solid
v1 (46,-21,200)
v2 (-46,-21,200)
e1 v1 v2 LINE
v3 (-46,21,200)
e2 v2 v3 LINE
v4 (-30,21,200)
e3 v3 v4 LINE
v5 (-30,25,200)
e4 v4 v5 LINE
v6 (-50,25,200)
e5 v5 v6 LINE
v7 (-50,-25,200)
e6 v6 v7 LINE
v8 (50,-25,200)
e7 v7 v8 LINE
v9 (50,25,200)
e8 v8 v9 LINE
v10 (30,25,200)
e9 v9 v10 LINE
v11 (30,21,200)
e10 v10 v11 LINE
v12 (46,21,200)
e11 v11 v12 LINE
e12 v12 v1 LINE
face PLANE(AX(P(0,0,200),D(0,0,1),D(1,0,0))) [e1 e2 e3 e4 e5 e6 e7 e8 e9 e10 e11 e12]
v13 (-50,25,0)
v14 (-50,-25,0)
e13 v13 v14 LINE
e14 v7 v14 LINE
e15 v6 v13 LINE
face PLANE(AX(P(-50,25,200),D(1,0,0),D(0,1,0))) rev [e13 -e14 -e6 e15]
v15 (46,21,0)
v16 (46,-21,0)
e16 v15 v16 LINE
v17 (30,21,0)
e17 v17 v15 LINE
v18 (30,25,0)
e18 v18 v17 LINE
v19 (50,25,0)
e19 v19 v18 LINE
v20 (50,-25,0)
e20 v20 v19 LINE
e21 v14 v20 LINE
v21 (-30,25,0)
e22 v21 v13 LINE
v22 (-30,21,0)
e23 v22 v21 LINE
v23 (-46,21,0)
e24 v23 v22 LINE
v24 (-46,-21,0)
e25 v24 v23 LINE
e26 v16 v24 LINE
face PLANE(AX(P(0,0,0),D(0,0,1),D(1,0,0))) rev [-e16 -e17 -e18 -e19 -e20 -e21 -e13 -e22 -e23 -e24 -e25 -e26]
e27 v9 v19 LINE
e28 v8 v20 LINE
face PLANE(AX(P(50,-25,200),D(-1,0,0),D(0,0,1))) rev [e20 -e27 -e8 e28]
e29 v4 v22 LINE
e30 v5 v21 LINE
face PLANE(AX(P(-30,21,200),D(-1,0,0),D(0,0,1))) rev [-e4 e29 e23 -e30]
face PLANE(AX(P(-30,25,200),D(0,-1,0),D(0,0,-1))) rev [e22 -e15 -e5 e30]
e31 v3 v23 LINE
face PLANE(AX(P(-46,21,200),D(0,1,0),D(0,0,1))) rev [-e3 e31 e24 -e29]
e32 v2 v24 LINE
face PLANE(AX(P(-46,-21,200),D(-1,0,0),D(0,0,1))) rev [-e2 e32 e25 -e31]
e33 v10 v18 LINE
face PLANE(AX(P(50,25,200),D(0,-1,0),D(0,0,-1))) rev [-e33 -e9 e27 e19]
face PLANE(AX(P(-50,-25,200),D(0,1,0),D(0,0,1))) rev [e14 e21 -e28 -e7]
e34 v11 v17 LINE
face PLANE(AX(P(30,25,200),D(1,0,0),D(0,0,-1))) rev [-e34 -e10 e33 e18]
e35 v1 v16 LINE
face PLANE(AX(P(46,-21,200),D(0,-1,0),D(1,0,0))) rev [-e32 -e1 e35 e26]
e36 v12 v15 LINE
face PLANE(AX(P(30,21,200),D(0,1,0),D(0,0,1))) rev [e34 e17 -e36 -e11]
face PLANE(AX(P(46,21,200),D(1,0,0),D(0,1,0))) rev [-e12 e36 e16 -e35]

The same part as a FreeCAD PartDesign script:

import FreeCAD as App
import Part
import Sketcher
Q = App.Units.Quantity


def add_polygon(sketch, points):
    """Adds a closed chain of lines whose ends are joined by coincident constraints."""
    first, n = sketch.GeometryCount, len(points)
    for a, b in zip(points, points[1:] + points[:1]):
        sketch.addGeometry(Part.LineSegment(App.Vector(*a, 0), App.Vector(*b, 0)), False)
    for i in range(n):
        sketch.addConstraint(Sketcher.Constraint("Coincident", first + i, 2, first + (i + 1) % n, 1))

doc = App.newDocument("Part")
body = doc.addObject("PartDesign::Body", "Body")

# Sketch on XY plane
sketch1 = body.newObject("Sketcher::SketchObject", "Sketch")
sketch1.AttachmentSupport = (doc.getObject("XY_Plane"), [""])
sketch1.MapMode = "FlatFace"
add_polygon(sketch1, [(-30, 25), (-50, 25), (-50, -25), (50, -25), (50, 25), (30, 25), (30, 21), (46, 21), (46, -21), (-46, -21), (-46, 21), (-30, 21)])  # lines 0-11
sketch1.addConstraint([
    Sketcher.Constraint("Horizontal", 0),
    Sketcher.Constraint("Vertical", 1),
    Sketcher.Constraint("Horizontal", 2),
    Sketcher.Constraint("Vertical", 3),
    Sketcher.Constraint("Horizontal", 4),
    Sketcher.Constraint("Vertical", 5),
    Sketcher.Constraint("Horizontal", 6),
    Sketcher.Constraint("Vertical", 7),
    Sketcher.Constraint("Horizontal", 8),
    Sketcher.Constraint("Vertical", 9),
    Sketcher.Constraint("Horizontal", 10),
    Sketcher.Constraint("Vertical", 11),
    Sketcher.Constraint("Symmetric", 0, 2, 2, 2, -1, 1),
    Sketcher.Constraint("Symmetric", 6, 2, 8, 2, -1, 1),
    Sketcher.Constraint("Symmetric", 5, 2, 10, 2, -2),
    Sketcher.Constraint("Horizontal", 0, 2, 3, 2),
    Sketcher.Constraint("DistanceX", 0, 2, 0, 1, Q("20 mm")),
    Sketcher.Constraint("DistanceX", 2, 1, 2, 2, Q("100 mm")),
    Sketcher.Constraint("DistanceX", 6, 1, 6, 2, Q("16 mm")),
    Sketcher.Constraint("DistanceY", 1, 2, 1, 1, Q("50 mm")),
    Sketcher.Constraint("DistanceY", 5, 2, 5, 1, Q("4 mm")),
])
pad1 = body.newObject("PartDesign::Pad", "Pad")
pad1.Profile = sketch1
pad1.Length = 200

doc.recompute()
